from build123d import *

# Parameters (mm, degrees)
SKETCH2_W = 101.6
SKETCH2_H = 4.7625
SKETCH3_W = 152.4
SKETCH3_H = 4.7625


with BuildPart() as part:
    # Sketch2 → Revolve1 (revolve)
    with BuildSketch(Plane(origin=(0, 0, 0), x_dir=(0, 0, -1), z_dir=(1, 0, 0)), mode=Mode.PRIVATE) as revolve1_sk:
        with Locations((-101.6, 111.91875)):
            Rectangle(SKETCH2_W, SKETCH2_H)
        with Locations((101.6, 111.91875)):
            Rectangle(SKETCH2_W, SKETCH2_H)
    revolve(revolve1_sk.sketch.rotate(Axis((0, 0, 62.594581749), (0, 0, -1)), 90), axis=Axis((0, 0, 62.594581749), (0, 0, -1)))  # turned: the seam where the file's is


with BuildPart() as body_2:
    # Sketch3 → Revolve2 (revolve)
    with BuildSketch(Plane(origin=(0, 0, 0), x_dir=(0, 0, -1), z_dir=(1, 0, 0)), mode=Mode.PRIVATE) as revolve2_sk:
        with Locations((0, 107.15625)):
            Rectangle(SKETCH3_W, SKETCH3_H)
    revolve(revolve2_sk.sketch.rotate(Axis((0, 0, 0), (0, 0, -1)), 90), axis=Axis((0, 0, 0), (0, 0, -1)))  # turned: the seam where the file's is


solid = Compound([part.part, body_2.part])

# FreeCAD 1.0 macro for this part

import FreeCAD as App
import Part
import Sketcher
from FreeCAD import Vector
Q = App.Units.Quantity

doc = App.newDocument("Part")
body = doc.addObject("PartDesign::Body", "Body")
body.AllowCompound = True

sketch1 = body.newObject("Sketcher::SketchObject", "Sketch")
sketch1.AttachmentSupport = (doc.getObject("YZ_Plane"), [""])
sketch1.MapMode = "FlatFace"
sketch1.addGeometry(Part.LineSegment(Vector(114.3, 152.4, 0), Vector(109.5, 152.4, 0)), False)
sketch1.addGeometry(Part.LineSegment(Vector(109.5, 152.4, 0), Vector(109.5, 50.8, 0)), False)
sketch1.addGeometry(Part.LineSegment(Vector(109.5, 50.8, 0), Vector(114.3, 50.8, 0)), False)
sketch1.addGeometry(Part.LineSegment(Vector(114.3, 50.8, 0), Vector(114.3, 152.4, 0)), False)
sketch1.addGeometry(Part.LineSegment(Vector(114.3, -50.8, 0), Vector(109.5, -50.8, 0)), False)
sketch1.addGeometry(Part.LineSegment(Vector(109.5, -50.8, 0), Vector(109.5, -152.4, 0)), False)
sketch1.addGeometry(Part.LineSegment(Vector(109.5, -152.4, 0), Vector(114.3, -152.4, 0)), False)
sketch1.addGeometry(Part.LineSegment(Vector(114.3, -152.4, 0), Vector(114.3, -50.8, 0)), False)
sketch1.addConstraint(Sketcher.Constraint("Coincident", 0, 2, 1, 1))
sketch1.addConstraint(Sketcher.Constraint("Coincident", 1, 2, 2, 1))
sketch1.addConstraint(Sketcher.Constraint("Coincident", 2, 2, 3, 1))
sketch1.addConstraint(Sketcher.Constraint("Coincident", 3, 2, 0, 1))
sketch1.addConstraint(Sketcher.Constraint("Coincident", 4, 2, 5, 1))
sketch1.addConstraint(Sketcher.Constraint("Coincident", 5, 2, 6, 1))
sketch1.addConstraint(Sketcher.Constraint("Coincident", 6, 2, 7, 1))
sketch1.addConstraint(Sketcher.Constraint("Coincident", 7, 2, 4, 1))
sketch1.addConstraint(Sketcher.Constraint("Horizontal", 0))
sketch1.addConstraint(Sketcher.Constraint("Vertical", 1))
sketch1.addConstraint(Sketcher.Constraint("Horizontal", 2))
sketch1.addConstraint(Sketcher.Constraint("Vertical", 3))
sketch1.addConstraint(Sketcher.Constraint("Horizontal", 4))
sketch1.addConstraint(Sketcher.Constraint("Vertical", 5))
sketch1.addConstraint(Sketcher.Constraint("Horizontal", 6))
sketch1.addConstraint(Sketcher.Constraint("Vertical", 7))
sketch1.addConstraint(Sketcher.Constraint("Symmetric", 1, 2, 4, 2, -1))
sketch1.addConstraint(Sketcher.Constraint("Symmetric", 3, 2, 6, 2, -1))
sketch1.addConstraint(Sketcher.Constraint("DistanceY", 1, 2, 1, 1, Q("4 in")))
sketch1.addConstraint(Sketcher.Constraint("DistanceY", -1, 1, 0, 2, Q("6 in")))
sketch1.addConstraint(Sketcher.Constraint("DistanceX", -1, 1, 2, 2, Q("4.5 in")))
sketch1.addConstraint(Sketcher.Constraint("DistanceX", 0, 2, 0, 1, Q("0.1875 in")))
revolution = body.newObject("PartDesign::Revolution", "Revolution")
revolution.Profile = sketch1
revolution.ReferenceAxis = (sketch1, ["V_Axis"])
revolution.Angle = 360
body2 = doc.addObject("PartDesign::Body", "Body001")

sketch2 = body2.newObject("Sketcher::SketchObject", "Sketch001")
sketch2.AttachmentSupport = (doc.getObject("YZ_Plane001"), [""])
sketch2.MapMode = "FlatFace"
sketch2.addGeometry(Part.LineSegment(Vector(109.5, 76.2, 0), Vector(104.8, 76.2, 0)), False)
sketch2.addGeometry(Part.LineSegment(Vector(104.8, 76.2, 0), Vector(104.8, -76.2, 0)), False)
sketch2.addGeometry(Part.LineSegment(Vector(104.8, -76.2, 0), Vector(109.5, -76.2, 0)), False)
sketch2.addGeometry(Part.LineSegment(Vector(109.5, -76.2, 0), Vector(109.5, 76.2, 0)), False)
sketch2.addConstraint(Sketcher.Constraint("Coincident", 0, 2, 1, 1))
sketch2.addConstraint(Sketcher.Constraint("Coincident", 1, 2, 2, 1))
sketch2.addConstraint(Sketcher.Constraint("Coincident", 2, 2, 3, 1))
sketch2.addConstraint(Sketcher.Constraint("Coincident", 3, 2, 0, 1))
sketch2.addConstraint(Sketcher.Constraint("Horizontal", 0))
sketch2.addConstraint(Sketcher.Constraint("Vertical", 1))
sketch2.addConstraint(Sketcher.Constraint("Horizontal", 2))
sketch2.addConstraint(Sketcher.Constraint("Vertical", 3))
sketch2.addConstraint(Sketcher.Constraint("DistanceY", 1, 2, 1, 1, Q("6 in")))
sketch2.addConstraint(Sketcher.Constraint("DistanceY", -1, 1, 0, 2, Q("3 in")))
sketch2.addConstraint(Sketcher.Constraint("DistanceX", 0, 2, 0, 1, Q("0.1875 in")))
sketch2.addConstraint(Sketcher.Constraint("DistanceX", -1, 1, 0, 2, Q("4.125 in")))
revolution2 = body2.newObject("PartDesign::Revolution", "Revolution001")
revolution2.Profile = sketch2
revolution2.ReferenceAxis = (sketch2, ["V_Axis"])
revolution2.Angle = 360

doc.recompute()
